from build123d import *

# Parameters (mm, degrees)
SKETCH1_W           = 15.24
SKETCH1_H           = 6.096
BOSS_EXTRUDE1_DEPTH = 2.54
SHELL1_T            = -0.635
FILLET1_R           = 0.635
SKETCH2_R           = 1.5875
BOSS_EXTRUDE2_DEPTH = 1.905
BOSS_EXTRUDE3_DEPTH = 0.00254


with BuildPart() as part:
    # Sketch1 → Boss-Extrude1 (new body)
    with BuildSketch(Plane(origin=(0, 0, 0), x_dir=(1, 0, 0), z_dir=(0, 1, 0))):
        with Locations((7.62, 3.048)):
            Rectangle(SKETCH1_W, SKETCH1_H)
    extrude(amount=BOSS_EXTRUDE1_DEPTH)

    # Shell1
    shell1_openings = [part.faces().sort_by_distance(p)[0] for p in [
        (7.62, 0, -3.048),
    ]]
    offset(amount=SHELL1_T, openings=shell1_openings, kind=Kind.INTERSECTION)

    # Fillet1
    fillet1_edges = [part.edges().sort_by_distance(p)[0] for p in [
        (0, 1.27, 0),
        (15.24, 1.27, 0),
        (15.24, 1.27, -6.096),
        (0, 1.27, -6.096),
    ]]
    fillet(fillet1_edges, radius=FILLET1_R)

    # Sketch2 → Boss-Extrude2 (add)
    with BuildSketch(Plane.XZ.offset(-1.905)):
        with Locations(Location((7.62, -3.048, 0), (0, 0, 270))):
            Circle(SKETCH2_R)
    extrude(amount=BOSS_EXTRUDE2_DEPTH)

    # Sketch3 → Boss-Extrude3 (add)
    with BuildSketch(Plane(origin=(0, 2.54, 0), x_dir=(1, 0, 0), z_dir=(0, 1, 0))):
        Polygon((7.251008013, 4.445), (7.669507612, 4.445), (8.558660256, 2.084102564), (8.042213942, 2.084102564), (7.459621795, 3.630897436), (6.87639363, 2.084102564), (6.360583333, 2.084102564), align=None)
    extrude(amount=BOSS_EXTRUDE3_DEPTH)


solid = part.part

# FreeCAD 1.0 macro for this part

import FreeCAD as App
import Part
import Sketcher
from FreeCAD import Vector
Q = App.Units.Quantity


def edges_at(feature, points):
    """Names of the edges that pass closest to the given points."""
    edges = feature.Shape.Edges
    near = lambda p: min(range(len(edges)), key=lambda i: edges[i].distToShape(Part.Vertex(*p))[0])
    return sorted({f"Edge{near(p) + 1}" for p in points})


def faces_at(feature, points):
    """Names of the faces that lie closest to the given points."""
    faces = feature.Shape.Faces
    near = lambda p: min(range(len(faces)), key=lambda i: faces[i].distToShape(Part.Vertex(*p))[0])
    return sorted({f"Face{near(p) + 1}" for p in points})

doc = App.newDocument("Part")
params = doc.addObject("Spreadsheet::Sheet", "Params")
for row, (alias, value) in enumerate([
    ("sketch1_width", "0.6 in"),
    ("sketch1_height", "0.24 in"),
    ("pad1_length", "0.1 in"),
    ("thickness_wall", "0.025 in"),
    ("fillet_radius", "0.025 in"),
    ("sketch2_diameter", "0.125 in"),
    ("pad2_length", "0.075 in"),
    ("pad3_length", "0.0001 in"),
], start=1):
    params.set(f"A{row}", alias)
    params.set(f"B{row}", "=" + value)
    params.setAlias(f"B{row}", alias)

body = doc.addObject("PartDesign::Body", "Body")

# Sketch on XZ plane
sketch1 = body.newObject("Sketcher::SketchObject", "Sketch")
sketch1.AttachmentSupport = (doc.getObject("XZ_Plane"), [""])
sketch1.MapMode = "FlatFace"
sketch1.addGeometry([
    Part.LineSegment(Vector(0, -6.096, 0), Vector(0, 0, 0)),
    Part.LineSegment(Vector(0, 0, 0), Vector(15.24, 0, 0)),
    Part.LineSegment(Vector(15.24, 0, 0), Vector(15.24, -6.096, 0)),
    Part.LineSegment(Vector(15.24, -6.096, 0), Vector(0, -6.096, 0)),
], False)
sketch1.addConstraint([
    Sketcher.Constraint("Coincident", 0, 2, 1, 1),
    Sketcher.Constraint("Coincident", 1, 2, 2, 1),
    Sketcher.Constraint("Coincident", 2, 2, 3, 1),
    Sketcher.Constraint("Coincident", 3, 2, 0, 1),
    Sketcher.Constraint("Vertical", 0),
    Sketcher.Constraint("Horizontal", 1),
    Sketcher.Constraint("Vertical", 2),
    Sketcher.Constraint("Horizontal", 3),
    Sketcher.Constraint("Coincident", 0, 2, -1, 1),
    Sketcher.Constraint("DistanceX", 1, 1, 1, 2, Q("0.6 in")),
    Sketcher.Constraint("DistanceY", 0, 1, 0, 2, Q("0.24 in")),
])
sketch1.setExpression("Constraints[9]", "Params.sketch1_width")
sketch1.setExpression("Constraints[10]", "Params.sketch1_height")
pad1 = body.newObject("PartDesign::Pad", "Pad")
pad1.Profile = sketch1
pad1.setExpression("Length", "Params.pad1_length")
pad1.Reversed = True
doc.recompute()

thickness = body.newObject("PartDesign::Thickness", "Thickness")
thickness.Base = (pad1, faces_at(pad1, [(7.62, 0, -3.048)]))
thickness.setExpression("Value", "Params.thickness_wall")
thickness.Reversed = True
thickness.Join = "Intersection"
doc.recompute()

fillet = body.newObject("PartDesign::Fillet", "Fillet")
fillet.Base = (thickness, edges_at(thickness, [
    (0, 1.27, 0),
    (15.24, 1.27, 0),
    (15.24, 1.27, -6.096),
    (0, 1.27, -6.096),
]))
fillet.setExpression("Radius", "Params.fillet_radius")

# Sketch on XZ plane
sketch2 = body.newObject("Sketcher::SketchObject", "Sketch001")
sketch2.AttachmentSupport = (doc.getObject("XZ_Plane"), [""])
sketch2.MapMode = "FlatFace"
sketch2.AttachmentOffset = App.Placement(Vector(0, 0, -0.075 * 25.4), App.Rotation())
sketch2.addGeometry(Part.Circle(Vector(7.62, -3.048, 0), Vector(0, 0, 1), 1.5875), False)
sketch2.addConstraint([
    Sketcher.Constraint("Diameter", 0, Q("0.125 in")),
    Sketcher.Constraint("DistanceX", -1, 1, 0, 3, Q("0.3 in")),
    Sketcher.Constraint("DistanceY", 0, 3, -1, 1, Q("0.12 in")),
])
sketch2.setExpression("Constraints[0]", "Params.sketch2_diameter")
pad2 = body.newObject("PartDesign::Pad", "Pad001")
pad2.Profile = sketch2
pad2.setExpression("Length", "Params.pad2_length")

# Sketch on XZ plane
sketch3 = body.newObject("Sketcher::SketchObject", "Sketch002")
sketch3.AttachmentSupport = (doc.getObject("XZ_Plane"), [""])
sketch3.MapMode = "FlatFace"
sketch3.AttachmentOffset = App.Placement(Vector(0, 0, -0.1 * 25.4), App.Rotation())
sketch3.addGeometry([
    Part.LineSegment(Vector(7.669508, -4.445, 0), Vector(7.251008, -4.445, 0)),  # 0
    Part.LineSegment(Vector(7.251008, -4.445, 0), Vector(6.360583, -2.084103, 0)),  # 1
    Part.LineSegment(Vector(6.360583, -2.084103, 0), Vector(6.876394, -2.084103, 0)),  # 2
    Part.LineSegment(Vector(6.876394, -2.084103, 0), Vector(7.459622, -3.630897, 0)),  # 3
    Part.LineSegment(Vector(7.459622, -3.630897, 0), Vector(8.042214, -2.084103, 0)),  # 4
    Part.LineSegment(Vector(8.042214, -2.084103, 0), Vector(8.55866, -2.084103, 0)),  # 5
    Part.LineSegment(Vector(8.55866, -2.084103, 0), Vector(7.669508, -4.445, 0)),  # 6
], False)
sketch3.addConstraint([
    Sketcher.Constraint("Coincident", 0, 2, 1, 1),
    Sketcher.Constraint("Coincident", 1, 2, 2, 1),
    Sketcher.Constraint("Coincident", 2, 2, 3, 1),
    Sketcher.Constraint("Coincident", 3, 2, 4, 1),
    Sketcher.Constraint("Coincident", 4, 2, 5, 1),
    Sketcher.Constraint("Coincident", 5, 2, 6, 1),
    Sketcher.Constraint("Coincident", 6, 2, 0, 1),
    Sketcher.Constraint("Horizontal", 0),
    Sketcher.Constraint("Horizontal", 2),
    Sketcher.Constraint("Horizontal", 5),
    Sketcher.Constraint("Horizontal", 2, 2, 4, 2),
    Sketcher.Constraint("DistanceY", 0, 2, -1, 1, Q("0.175 in")),
    Sketcher.Constraint("DistanceX", 0, 2, 0, 1, 0.4185),
    Sketcher.Constraint("DistanceX", 2, 1, 2, 2, 0.51581),
    Sketcher.Constraint("Distance", 1, 2.523231),
    Sketcher.Constraint("DistanceX", 5, 1, 5, 2, 0.516446),
    Sketcher.Constraint("DistanceX", -1, 1, 0, 2, 7.251008),
    Sketcher.Constraint("DistanceX", -1, 1, 3, 2, 7.459622),
    Sketcher.Constraint("DistanceX", -1, 1, 5, 2, 8.55866),
    Sketcher.Constraint("DistanceX", 2, 2, 3, 2, 0.583228),
    Sketcher.Constraint("Distance", 3, 1.653097),
])
pad3 = body.newObject("PartDesign::Pad", "Pad002")
pad3.Profile = sketch3
pad3.setExpression("Length", "Params.pad3_length")
pad3.Reversed = True

doc.recompute()
